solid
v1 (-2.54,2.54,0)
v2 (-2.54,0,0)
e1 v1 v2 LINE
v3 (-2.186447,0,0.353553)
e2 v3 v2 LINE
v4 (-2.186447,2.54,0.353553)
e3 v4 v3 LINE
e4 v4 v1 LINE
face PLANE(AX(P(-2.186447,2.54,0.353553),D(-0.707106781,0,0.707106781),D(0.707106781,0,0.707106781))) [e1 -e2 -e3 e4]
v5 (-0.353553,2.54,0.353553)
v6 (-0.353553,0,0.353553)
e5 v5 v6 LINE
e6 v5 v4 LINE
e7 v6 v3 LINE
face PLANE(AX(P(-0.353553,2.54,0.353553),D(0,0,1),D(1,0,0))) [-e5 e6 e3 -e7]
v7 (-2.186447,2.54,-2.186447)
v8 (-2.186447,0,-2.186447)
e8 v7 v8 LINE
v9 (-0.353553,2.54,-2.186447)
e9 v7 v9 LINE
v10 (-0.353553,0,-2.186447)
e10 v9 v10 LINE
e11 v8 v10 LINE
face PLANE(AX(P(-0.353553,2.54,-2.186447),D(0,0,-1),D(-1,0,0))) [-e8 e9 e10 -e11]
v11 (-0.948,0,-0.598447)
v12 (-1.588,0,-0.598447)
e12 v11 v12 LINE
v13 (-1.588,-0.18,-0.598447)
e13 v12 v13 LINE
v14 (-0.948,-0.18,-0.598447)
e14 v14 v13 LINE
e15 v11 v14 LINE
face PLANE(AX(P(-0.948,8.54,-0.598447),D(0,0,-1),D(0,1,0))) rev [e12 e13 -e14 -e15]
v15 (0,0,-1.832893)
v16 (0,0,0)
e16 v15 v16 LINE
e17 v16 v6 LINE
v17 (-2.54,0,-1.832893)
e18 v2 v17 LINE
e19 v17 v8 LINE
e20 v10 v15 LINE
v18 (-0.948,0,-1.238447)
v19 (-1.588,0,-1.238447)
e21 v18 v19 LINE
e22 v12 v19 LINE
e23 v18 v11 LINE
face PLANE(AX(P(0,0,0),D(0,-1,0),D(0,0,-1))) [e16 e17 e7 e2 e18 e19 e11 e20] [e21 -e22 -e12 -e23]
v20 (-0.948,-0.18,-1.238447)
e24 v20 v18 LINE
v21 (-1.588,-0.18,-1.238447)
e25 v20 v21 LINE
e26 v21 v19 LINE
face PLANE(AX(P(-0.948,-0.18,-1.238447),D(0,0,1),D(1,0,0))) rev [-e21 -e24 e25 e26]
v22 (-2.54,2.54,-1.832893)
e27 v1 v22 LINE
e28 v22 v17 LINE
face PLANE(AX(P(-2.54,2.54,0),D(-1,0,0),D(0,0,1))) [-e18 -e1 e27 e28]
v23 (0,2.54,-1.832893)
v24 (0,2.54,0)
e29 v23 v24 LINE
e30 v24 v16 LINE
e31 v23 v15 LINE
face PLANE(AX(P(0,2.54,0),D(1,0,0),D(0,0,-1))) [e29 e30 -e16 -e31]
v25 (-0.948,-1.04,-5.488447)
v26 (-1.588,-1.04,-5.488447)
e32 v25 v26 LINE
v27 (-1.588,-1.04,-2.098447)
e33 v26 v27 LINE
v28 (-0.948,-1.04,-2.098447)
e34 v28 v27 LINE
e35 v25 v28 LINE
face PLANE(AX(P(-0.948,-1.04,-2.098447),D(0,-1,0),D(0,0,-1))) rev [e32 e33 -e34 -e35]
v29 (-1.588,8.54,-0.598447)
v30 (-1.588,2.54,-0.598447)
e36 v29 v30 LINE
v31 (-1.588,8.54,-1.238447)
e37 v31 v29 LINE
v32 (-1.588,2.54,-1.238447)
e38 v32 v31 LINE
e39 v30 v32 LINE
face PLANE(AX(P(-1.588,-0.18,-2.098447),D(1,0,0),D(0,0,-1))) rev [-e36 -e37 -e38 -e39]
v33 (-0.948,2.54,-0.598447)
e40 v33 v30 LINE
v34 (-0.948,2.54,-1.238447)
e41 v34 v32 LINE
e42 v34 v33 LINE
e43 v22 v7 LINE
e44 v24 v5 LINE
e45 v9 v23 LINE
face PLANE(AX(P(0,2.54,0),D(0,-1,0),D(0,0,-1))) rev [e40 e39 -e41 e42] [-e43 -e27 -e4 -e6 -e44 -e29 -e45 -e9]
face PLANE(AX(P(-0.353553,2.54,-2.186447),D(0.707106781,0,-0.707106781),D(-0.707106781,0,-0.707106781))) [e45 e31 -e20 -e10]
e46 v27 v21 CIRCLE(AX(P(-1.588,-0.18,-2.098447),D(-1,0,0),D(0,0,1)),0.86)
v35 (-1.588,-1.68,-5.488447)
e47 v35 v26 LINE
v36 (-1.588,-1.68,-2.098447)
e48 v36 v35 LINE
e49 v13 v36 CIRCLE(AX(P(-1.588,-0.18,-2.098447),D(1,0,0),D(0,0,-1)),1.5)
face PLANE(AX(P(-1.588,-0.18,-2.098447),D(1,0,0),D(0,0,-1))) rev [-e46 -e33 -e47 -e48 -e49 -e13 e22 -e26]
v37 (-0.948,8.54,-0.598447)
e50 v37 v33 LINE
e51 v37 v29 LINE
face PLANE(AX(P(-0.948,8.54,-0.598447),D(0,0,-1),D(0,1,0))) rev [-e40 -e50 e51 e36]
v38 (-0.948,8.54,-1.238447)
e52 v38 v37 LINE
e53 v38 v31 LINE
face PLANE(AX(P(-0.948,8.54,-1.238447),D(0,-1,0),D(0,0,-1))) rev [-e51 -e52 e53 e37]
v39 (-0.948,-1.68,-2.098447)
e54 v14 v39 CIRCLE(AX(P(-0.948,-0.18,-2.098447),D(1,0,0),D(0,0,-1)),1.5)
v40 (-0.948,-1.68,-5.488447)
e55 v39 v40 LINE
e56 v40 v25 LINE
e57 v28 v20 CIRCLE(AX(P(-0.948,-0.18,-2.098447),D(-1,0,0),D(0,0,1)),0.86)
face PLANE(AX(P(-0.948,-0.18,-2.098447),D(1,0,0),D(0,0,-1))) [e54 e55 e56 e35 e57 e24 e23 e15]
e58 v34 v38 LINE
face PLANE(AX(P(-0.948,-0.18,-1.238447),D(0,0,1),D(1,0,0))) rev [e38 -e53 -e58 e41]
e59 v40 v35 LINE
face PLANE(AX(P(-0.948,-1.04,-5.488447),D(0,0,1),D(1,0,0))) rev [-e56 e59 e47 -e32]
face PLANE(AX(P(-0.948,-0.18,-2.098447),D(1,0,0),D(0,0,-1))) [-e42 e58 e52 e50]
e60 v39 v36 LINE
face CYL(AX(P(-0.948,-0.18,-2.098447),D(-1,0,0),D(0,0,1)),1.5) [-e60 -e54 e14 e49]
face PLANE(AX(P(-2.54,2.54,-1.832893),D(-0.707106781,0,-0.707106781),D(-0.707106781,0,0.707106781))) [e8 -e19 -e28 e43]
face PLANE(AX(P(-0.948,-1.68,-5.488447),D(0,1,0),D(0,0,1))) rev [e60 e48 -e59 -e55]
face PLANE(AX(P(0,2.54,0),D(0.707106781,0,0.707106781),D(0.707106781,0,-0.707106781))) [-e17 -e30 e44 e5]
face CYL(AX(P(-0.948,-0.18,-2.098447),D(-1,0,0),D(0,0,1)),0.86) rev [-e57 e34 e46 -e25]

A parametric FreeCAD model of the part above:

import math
import FreeCAD as App
import Part
import Sketcher
Q = App.Units.Quantity

doc = App.newDocument("Part")
body = doc.addObject("PartDesign::Body", "Body")

# Sketch on XZ plane
sketch1 = body.newObject("Sketcher::SketchObject", "Sketch")
sketch1.AttachmentSupport = (doc.getObject("XZ_Plane"), [""])
sketch1.MapMode = "FlatFace"
sketch1.addGeometry(Part.LineSegment(App.Vector(-2.19, -2.19, 0), App.Vector(-0.35, -2.19, 0)), False)
sketch1.addGeometry(Part.LineSegment(App.Vector(-0.35, -2.19, 0), App.Vector(0, -1.83, 0)), False)
sketch1.addGeometry(Part.LineSegment(App.Vector(0, -1.83, 0), App.Vector(0, 0, 0)), False)
sketch1.addGeometry(Part.LineSegment(App.Vector(0, 0, 0), App.Vector(-0.35, 0.35, 0)), False)
sketch1.addGeometry(Part.LineSegment(App.Vector(-0.35, 0.35, 0), App.Vector(-2.19, 0.35, 0)), False)
sketch1.addGeometry(Part.LineSegment(App.Vector(-2.19, 0.35, 0), App.Vector(-2.54, 0, 0)), False)
sketch1.addGeometry(Part.LineSegment(App.Vector(-2.54, 0, 0), App.Vector(-2.54, -1.83, 0)), False)
sketch1.addGeometry(Part.LineSegment(App.Vector(-2.54, -1.83, 0), App.Vector(-2.19, -2.19, 0)), False)
sketch1.addGeometry(Part.LineSegment(App.Vector(-1.59, -1.23, 0), App.Vector(-1.59, -0.6, 0)), False)
sketch1.addGeometry(Part.LineSegment(App.Vector(-1.59, -0.6, 0), App.Vector(-0.95, -0.6, 0)), False)
sketch1.addGeometry(Part.LineSegment(App.Vector(-0.95, -0.6, 0), App.Vector(-0.95, -1.23, 0)), False)
sketch1.addGeometry(Part.LineSegment(App.Vector(-0.95, -1.23, 0), App.Vector(-1.59, -1.23, 0)), False)
sketch1.addConstraint(Sketcher.Constraint("Coincident", 0, 2, 1, 1))
sketch1.addConstraint(Sketcher.Constraint("Coincident", 1, 2, 2, 1))
sketch1.addConstraint(Sketcher.Constraint("Coincident", 2, 2, 3, 1))
sketch1.addConstraint(Sketcher.Constraint("Coincident", 3, 2, 4, 1))
sketch1.addConstraint(Sketcher.Constraint("Coincident", 4, 2, 5, 1))
sketch1.addConstraint(Sketcher.Constraint("Coincident", 5, 2, 6, 1))
sketch1.addConstraint(Sketcher.Constraint("Coincident", 6, 2, 7, 1))
sketch1.addConstraint(Sketcher.Constraint("Coincident", 7, 2, 0, 1))
sketch1.addConstraint(Sketcher.Constraint("Coincident", 8, 2, 9, 1))
sketch1.addConstraint(Sketcher.Constraint("Coincident", 9, 2, 10, 1))
sketch1.addConstraint(Sketcher.Constraint("Coincident", 10, 2, 11, 1))
sketch1.addConstraint(Sketcher.Constraint("Coincident", 11, 2, 8, 1))
sketch1.addConstraint(Sketcher.Constraint("Horizontal", 0))
sketch1.addConstraint(Sketcher.Constraint("Vertical", 2))
sketch1.addConstraint(Sketcher.Constraint("Horizontal", 4))
sketch1.addConstraint(Sketcher.Constraint("Vertical", 6))
sketch1.addConstraint(Sketcher.Constraint("Vertical", 8))
sketch1.addConstraint(Sketcher.Constraint("Horizontal", 9))
sketch1.addConstraint(Sketcher.Constraint("Vertical", 10))
sketch1.addConstraint(Sketcher.Constraint("Horizontal", 11))
sketch1.addConstraint(Sketcher.Constraint("Coincident", 2, 2, -1, 1))
sketch1.addConstraint(Sketcher.Constraint("PointOnObject", 5, 2, -1))
sketch1.addConstraint(Sketcher.Constraint("Perpendicular", 1, 3))
sketch1.addConstraint(Sketcher.Constraint("Perpendicular", 3, 5))
sketch1.addConstraint(Sketcher.Constraint("Perpendicular", 5, 7))
sketch1.addConstraint(Sketcher.Constraint("Horizontal", 1, 2, 6, 2))
sketch1.addConstraint(Sketcher.Constraint("Vertical", 0, 2, 3, 2))
sketch1.addConstraint(Sketcher.Constraint("Vertical", 4, 2, 7, 2))
sketch1.addConstraint(Sketcher.Constraint("Equal", 4, 2))
sketch1.addConstraint(Sketcher.Constraint("Equal", 11, 8))
sketch1.addConstraint(Sketcher.Constraint("Distance", 1, Q("0.5 mm")))
sketch1.addConstraint(Sketcher.Constraint("DistanceX", 9, 1, 9, 2, Q("0.636 mm")))
sketch1.addConstraint(Sketcher.Constraint("DistanceX", 5, 2, -1, 1, Q("2.54 mm")))
sketch1.addConstraint(Sketcher.Constraint("DistanceX", 8, 2, -1, 1, Q("1.588 mm")))
sketch1.addConstraint(Sketcher.Constraint("DistanceY", 8, 2, 4, 2, Q("0.952 mm")))
pad1 = body.newObject("PartDesign::Pad", "Pad")
pad1.Profile = sketch1
pad1.Length = 2.54
pad1.Reversed = True

# Sketch on YZ plane
sketch2 = body.newObject("Sketcher::SketchObject", "Sketch001")
sketch2.AttachmentSupport = (doc.getObject("YZ_Plane"), [""])
sketch2.MapMode = "FlatFace"
sketch2.AttachmentOffset = App.Placement(App.Vector(0, 0, -1.588), App.Rotation())
sketch2.addGeometry(Part.LineSegment(App.Vector(8.5, -0.6, 0), App.Vector(-0.2, -0.6, 0)), False)
sketch2.addGeometry(Part.ArcOfCircle(Part.Circle(App.Vector(-0.2, -2.1, 0), App.Vector(0, 0, 1), 1.5), math.radians(90), math.radians(180)), False)
sketch2.addGeometry(Part.LineSegment(App.Vector(-1.7, -2.1, 0), App.Vector(-1.7, -5.5, 0)), False)
sketch2.addGeometry(Part.LineSegment(App.Vector(-1.7, -5.5, 0), App.Vector(-1, -5.5, 0)), False)
sketch2.addGeometry(Part.LineSegment(App.Vector(-1, -5.5, 0), App.Vector(-1, -2.1, 0)), False)
sketch2.addGeometry(Part.ArcOfCircle(Part.Circle(App.Vector(-0.2, -2.1, 0), App.Vector(0, 0, 1), 0.9), math.radians(90), math.radians(180)), False)
sketch2.addGeometry(Part.LineSegment(App.Vector(-0.2, -1.2, 0), App.Vector(8.5, -1.2, 0)), False)
sketch2.addGeometry(Part.LineSegment(App.Vector(8.5, -1.2, 0), App.Vector(8.5, -0.6, 0)), False)
sketch2.addConstraint(Sketcher.Constraint("Tangent", 0, 2, 1, 1))
sketch2.addConstraint(Sketcher.Constraint("Tangent", 1, 2, 2, 1))
sketch2.addConstraint(Sketcher.Constraint("Coincident", 2, 2, 3, 1))
sketch2.addConstraint(Sketcher.Constraint("Coincident", 3, 2, 4, 1))
sketch2.addConstraint(Sketcher.Constraint("Tangent", 4, 2, 5, 2))
sketch2.addConstraint(Sketcher.Constraint("Tangent", 5, 1, 6, 1))
sketch2.addConstraint(Sketcher.Constraint("Coincident", 6, 2, 7, 1))
sketch2.addConstraint(Sketcher.Constraint("Coincident", 7, 2, 0, 1))
sketch2.addConstraint(Sketcher.Constraint("Horizontal", 0))
sketch2.addConstraint(Sketcher.Constraint("Vertical", 2))
sketch2.addConstraint(Sketcher.Constraint("Horizontal", 3))
sketch2.addConstraint(Sketcher.Constraint("Vertical", 4))
sketch2.addConstraint(Sketcher.Constraint("Horizontal", 6))
sketch2.addConstraint(Sketcher.Constraint("Vertical", 7))
sketch2.addConstraint(Sketcher.Constraint("Coincident", 5, 3, 1, 3))
sketch2.addConstraint(Sketcher.Constraint("Radius", 1, Q("1.5 mm")))
sketch2.addConstraint(Sketcher.Constraint("Radius", 5, Q("0.86 mm")))
sketch2.addConstraint(Sketcher.Constraint("DistanceX", 0, 2, 0, 1, Q("8.72 mm")))
sketch2.addConstraint(Sketcher.Constraint("DistanceY", 2, 2, 2, 1, Q("3.39 mm")))
sketch2.addConstraint(Sketcher.Constraint("DistanceX", 1, 3, -1, 1, Q("0.18 mm")))
sketch2.addConstraint(Sketcher.Constraint("DistanceY", 1, 3, -1, 1, Q("2.098447 mm")))
pad2 = body.newObject("PartDesign::Pad", "Pad001")
pad2.Profile = sketch2
pad2.Length = 0.64

doc.recompute()
